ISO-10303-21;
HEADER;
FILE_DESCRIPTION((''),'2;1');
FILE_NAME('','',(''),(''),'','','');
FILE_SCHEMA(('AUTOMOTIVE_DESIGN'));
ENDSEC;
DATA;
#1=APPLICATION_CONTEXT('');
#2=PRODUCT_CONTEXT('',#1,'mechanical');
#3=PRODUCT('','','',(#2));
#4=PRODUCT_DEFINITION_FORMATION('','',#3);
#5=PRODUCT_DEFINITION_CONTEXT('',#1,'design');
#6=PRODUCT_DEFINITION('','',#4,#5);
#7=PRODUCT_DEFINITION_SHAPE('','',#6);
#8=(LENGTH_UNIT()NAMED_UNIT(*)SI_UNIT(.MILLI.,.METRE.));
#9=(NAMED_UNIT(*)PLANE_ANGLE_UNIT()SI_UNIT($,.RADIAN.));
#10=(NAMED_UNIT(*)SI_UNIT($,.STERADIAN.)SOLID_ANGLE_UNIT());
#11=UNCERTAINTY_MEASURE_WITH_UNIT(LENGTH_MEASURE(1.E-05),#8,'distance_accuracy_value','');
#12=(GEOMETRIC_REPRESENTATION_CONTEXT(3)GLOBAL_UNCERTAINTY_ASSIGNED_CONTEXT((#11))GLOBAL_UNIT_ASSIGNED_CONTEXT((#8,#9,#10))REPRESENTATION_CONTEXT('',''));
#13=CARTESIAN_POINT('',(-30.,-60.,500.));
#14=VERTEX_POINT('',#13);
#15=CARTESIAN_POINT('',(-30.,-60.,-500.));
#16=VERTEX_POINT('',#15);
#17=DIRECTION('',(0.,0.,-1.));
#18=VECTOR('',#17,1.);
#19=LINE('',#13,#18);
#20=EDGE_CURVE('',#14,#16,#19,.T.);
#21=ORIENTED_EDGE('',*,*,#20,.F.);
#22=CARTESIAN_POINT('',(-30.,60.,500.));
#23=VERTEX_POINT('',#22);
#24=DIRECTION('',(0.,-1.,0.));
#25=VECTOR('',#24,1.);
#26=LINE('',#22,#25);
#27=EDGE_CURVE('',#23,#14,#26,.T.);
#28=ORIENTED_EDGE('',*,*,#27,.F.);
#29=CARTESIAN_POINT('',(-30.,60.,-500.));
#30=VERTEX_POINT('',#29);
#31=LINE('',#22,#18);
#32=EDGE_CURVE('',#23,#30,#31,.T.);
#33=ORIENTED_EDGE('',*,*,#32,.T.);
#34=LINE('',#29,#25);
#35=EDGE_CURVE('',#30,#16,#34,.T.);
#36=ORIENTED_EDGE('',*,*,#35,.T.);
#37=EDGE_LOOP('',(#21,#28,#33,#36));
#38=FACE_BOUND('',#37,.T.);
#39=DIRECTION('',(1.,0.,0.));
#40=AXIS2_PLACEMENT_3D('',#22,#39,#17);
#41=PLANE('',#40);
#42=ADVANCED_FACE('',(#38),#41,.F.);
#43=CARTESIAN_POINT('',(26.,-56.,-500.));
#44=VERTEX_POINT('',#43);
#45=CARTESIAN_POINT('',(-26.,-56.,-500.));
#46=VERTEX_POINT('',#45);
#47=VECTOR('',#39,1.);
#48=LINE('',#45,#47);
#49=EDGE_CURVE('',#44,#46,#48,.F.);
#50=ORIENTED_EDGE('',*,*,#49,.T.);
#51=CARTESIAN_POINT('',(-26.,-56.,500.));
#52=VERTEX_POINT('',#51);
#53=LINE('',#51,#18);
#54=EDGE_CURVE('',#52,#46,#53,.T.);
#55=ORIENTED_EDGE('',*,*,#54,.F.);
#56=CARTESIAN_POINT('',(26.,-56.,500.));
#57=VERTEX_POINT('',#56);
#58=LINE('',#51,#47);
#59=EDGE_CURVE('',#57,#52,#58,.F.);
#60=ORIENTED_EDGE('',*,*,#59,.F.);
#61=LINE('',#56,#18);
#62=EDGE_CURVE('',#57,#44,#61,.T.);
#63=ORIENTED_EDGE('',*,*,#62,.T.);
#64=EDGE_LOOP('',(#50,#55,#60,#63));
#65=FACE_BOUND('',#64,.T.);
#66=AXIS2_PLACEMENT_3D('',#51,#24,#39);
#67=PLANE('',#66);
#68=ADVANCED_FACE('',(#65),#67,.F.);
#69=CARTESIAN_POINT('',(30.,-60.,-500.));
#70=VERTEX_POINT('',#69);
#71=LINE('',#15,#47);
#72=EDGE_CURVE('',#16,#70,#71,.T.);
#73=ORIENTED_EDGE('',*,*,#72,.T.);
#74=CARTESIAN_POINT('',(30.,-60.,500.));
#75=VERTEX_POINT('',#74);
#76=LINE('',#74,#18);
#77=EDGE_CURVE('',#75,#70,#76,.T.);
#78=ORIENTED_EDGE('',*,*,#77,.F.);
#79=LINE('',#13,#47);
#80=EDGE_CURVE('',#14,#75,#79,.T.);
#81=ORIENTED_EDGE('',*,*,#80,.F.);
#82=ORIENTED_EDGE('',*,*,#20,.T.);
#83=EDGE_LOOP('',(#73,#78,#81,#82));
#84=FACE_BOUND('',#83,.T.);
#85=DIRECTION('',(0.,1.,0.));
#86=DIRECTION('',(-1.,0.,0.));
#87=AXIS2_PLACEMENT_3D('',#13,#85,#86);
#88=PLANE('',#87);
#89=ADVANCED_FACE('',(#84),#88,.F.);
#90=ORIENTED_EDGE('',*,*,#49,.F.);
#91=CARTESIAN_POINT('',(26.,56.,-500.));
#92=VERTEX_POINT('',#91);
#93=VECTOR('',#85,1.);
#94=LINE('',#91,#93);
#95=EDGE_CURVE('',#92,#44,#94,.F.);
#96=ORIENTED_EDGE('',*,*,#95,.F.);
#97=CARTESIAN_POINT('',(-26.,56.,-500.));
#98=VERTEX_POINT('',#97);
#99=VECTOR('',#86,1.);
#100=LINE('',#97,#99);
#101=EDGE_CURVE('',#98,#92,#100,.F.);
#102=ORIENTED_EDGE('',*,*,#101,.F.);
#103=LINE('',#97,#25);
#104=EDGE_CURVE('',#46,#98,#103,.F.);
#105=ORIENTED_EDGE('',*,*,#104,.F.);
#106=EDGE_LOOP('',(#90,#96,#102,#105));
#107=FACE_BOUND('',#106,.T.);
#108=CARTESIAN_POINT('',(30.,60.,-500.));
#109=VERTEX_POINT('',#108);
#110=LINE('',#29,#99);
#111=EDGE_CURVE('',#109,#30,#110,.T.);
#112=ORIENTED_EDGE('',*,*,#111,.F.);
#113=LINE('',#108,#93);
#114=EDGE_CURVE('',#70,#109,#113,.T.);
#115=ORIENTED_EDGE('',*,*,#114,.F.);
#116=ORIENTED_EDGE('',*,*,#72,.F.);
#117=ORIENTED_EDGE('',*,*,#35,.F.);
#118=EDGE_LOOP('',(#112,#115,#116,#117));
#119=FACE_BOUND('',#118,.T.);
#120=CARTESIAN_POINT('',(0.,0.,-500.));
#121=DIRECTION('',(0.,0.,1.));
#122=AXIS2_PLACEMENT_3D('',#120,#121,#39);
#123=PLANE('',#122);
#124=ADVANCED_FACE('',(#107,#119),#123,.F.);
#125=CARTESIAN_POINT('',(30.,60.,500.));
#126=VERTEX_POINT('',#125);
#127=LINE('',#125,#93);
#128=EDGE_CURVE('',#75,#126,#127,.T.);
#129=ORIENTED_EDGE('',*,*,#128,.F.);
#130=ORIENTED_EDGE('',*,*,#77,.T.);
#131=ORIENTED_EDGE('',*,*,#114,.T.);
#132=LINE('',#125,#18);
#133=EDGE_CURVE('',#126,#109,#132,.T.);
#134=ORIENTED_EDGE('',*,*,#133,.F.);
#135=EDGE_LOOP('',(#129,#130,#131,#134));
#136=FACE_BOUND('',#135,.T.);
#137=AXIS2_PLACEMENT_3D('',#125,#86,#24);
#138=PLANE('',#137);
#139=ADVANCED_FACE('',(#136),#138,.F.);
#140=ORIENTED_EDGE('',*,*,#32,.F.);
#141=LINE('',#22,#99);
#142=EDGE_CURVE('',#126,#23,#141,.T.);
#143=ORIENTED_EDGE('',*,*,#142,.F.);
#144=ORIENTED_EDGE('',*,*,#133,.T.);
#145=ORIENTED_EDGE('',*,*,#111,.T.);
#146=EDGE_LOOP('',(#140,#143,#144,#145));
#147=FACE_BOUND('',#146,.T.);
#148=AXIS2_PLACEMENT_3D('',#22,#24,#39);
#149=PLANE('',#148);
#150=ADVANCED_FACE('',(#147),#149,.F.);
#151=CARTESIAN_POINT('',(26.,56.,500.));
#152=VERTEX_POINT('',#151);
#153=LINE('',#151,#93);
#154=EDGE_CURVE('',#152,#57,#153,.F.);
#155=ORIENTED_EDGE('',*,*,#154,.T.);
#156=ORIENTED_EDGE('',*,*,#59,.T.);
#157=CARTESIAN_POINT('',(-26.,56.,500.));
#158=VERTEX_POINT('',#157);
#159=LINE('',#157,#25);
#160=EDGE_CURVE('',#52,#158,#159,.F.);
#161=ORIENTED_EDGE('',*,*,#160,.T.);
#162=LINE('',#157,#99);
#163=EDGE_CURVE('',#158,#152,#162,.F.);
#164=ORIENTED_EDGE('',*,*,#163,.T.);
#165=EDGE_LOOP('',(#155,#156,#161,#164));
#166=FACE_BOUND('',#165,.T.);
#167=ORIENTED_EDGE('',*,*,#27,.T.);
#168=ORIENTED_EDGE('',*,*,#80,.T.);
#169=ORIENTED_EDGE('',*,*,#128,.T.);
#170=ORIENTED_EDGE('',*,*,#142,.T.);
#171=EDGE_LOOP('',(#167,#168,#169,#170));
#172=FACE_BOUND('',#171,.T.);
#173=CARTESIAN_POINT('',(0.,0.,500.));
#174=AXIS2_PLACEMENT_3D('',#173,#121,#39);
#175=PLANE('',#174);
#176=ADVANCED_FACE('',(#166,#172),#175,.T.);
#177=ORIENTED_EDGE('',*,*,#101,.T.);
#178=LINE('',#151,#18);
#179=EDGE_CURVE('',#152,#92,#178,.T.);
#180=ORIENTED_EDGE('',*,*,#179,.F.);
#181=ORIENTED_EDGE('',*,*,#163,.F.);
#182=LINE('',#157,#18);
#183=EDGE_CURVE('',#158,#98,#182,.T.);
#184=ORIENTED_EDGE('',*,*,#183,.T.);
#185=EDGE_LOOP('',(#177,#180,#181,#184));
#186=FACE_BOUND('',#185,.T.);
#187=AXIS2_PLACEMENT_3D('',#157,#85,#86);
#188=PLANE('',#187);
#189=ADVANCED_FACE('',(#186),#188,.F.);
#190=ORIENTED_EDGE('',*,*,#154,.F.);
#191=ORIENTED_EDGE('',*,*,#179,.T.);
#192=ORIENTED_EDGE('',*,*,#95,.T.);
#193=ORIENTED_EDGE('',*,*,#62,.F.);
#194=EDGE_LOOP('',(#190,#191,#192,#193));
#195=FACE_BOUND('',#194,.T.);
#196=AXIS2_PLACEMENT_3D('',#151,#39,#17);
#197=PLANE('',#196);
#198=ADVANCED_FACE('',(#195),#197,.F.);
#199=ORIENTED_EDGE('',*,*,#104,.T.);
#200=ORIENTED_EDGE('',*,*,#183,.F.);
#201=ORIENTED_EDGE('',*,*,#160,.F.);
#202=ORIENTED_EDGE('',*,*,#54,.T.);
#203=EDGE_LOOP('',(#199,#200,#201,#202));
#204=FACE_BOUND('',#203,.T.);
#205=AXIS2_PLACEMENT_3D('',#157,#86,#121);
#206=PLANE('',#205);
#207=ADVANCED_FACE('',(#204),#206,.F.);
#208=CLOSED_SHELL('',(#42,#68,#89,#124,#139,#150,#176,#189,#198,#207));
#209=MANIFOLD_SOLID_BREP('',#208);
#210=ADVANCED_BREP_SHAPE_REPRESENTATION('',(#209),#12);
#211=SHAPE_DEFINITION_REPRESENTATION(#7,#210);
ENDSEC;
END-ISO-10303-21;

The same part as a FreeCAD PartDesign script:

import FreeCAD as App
import Part
import Sketcher
from FreeCAD import Vector


def add_polygon(sketch, points):
    """Adds a closed chain of lines whose ends are joined by coincident constraints."""
    first, n = sketch.GeometryCount, len(points)
    for a, b in zip(points, points[1:] + points[:1]):
        sketch.addGeometry(Part.LineSegment(App.Vector(*a, 0), App.Vector(*b, 0)), False)
    for i in range(n):
        sketch.addConstraint(Sketcher.Constraint("Coincident", first + i, 2, first + (i + 1) % n, 1))

doc = App.newDocument("Part")
params = doc.addObject("Spreadsheet::Sheet", "Params")
for row, (alias, value) in enumerate([
    ("sketch1_width", "60 mm"),
    ("sketch1_width2", "52 mm"),
    ("sketch1_height", "120 mm"),
    ("sketch1_height2", "112 mm"),
], start=1):
    params.set(f"A{row}", alias)
    params.set(f"B{row}", "=" + value)
    params.setAlias(f"B{row}", alias)

body = doc.addObject("PartDesign::Body", "Body")

sketch1 = doc.addObject("Sketcher::SketchObject", "Sketch")
body.addObject(sketch1)
sketch1.AttachmentSupport = (doc.XY_Plane, [""])
sketch1.MapMode = "FlatFace"
add_polygon(sketch1, [(-30, 60), (-30, -60), (30, -60), (30, 60)])
add_polygon(sketch1, [(26, -56), (-26, -56), (-26, 56), (26, 56)])
sketch1.addConstraint([
    Sketcher.Constraint("Vertical", 0),
    Sketcher.Constraint("Horizontal", 1),
    Sketcher.Constraint("Vertical", 2),
    Sketcher.Constraint("Horizontal", 3),
    Sketcher.Constraint("Horizontal", 4),
    Sketcher.Constraint("Vertical", 5),
    Sketcher.Constraint("Horizontal", 6),
    Sketcher.Constraint("Vertical", 7),
    Sketcher.Constraint("Symmetric", 0, 2, 2, 2, -1, 1),
    Sketcher.Constraint("Symmetric", 4, 2, 6, 2, -1, 1),
    Sketcher.Constraint("DistanceX", 1, 1, 1, 2, 60.0),
    Sketcher.Constraint("DistanceX", 4, 2, 4, 1, 52.0),
    Sketcher.Constraint("DistanceY", 0, 2, 0, 1, 120.0),
    Sketcher.Constraint("DistanceY", 5, 1, 5, 2, 112.0),
])
sketch1.setExpression("Constraints[18]", "Params.sketch1_width")
sketch1.setExpression("Constraints[19]", "Params.sketch1_width2")
sketch1.setExpression("Constraints[20]", "Params.sketch1_height")
sketch1.setExpression("Constraints[21]", "Params.sketch1_height2")

sketch2 = doc.addObject("Sketcher::SketchObject", "Sketch001")
body.addObject(sketch2)
sketch2.AttachmentSupport = (doc.XZ_Plane, [""])
sketch2.MapMode = "FlatFace"
sketch2.addGeometry(Part.BSplineCurve([Vector(0, -500, 0), Vector(0, 500, 0)], [2, 2], [0, 1], False, 1, [1, 1], False), False)
sketch2.addConstraint(Sketcher.Constraint("Block", 0))
doc.recompute()

additivepipe = doc.addObject("PartDesign::AdditivePipe", "AdditivePipe")
body.addObject(additivepipe)
additivepipe.Profile = sketch1
additivepipe.Spine = (sketch2, ["Edge1"])

doc.recompute()
